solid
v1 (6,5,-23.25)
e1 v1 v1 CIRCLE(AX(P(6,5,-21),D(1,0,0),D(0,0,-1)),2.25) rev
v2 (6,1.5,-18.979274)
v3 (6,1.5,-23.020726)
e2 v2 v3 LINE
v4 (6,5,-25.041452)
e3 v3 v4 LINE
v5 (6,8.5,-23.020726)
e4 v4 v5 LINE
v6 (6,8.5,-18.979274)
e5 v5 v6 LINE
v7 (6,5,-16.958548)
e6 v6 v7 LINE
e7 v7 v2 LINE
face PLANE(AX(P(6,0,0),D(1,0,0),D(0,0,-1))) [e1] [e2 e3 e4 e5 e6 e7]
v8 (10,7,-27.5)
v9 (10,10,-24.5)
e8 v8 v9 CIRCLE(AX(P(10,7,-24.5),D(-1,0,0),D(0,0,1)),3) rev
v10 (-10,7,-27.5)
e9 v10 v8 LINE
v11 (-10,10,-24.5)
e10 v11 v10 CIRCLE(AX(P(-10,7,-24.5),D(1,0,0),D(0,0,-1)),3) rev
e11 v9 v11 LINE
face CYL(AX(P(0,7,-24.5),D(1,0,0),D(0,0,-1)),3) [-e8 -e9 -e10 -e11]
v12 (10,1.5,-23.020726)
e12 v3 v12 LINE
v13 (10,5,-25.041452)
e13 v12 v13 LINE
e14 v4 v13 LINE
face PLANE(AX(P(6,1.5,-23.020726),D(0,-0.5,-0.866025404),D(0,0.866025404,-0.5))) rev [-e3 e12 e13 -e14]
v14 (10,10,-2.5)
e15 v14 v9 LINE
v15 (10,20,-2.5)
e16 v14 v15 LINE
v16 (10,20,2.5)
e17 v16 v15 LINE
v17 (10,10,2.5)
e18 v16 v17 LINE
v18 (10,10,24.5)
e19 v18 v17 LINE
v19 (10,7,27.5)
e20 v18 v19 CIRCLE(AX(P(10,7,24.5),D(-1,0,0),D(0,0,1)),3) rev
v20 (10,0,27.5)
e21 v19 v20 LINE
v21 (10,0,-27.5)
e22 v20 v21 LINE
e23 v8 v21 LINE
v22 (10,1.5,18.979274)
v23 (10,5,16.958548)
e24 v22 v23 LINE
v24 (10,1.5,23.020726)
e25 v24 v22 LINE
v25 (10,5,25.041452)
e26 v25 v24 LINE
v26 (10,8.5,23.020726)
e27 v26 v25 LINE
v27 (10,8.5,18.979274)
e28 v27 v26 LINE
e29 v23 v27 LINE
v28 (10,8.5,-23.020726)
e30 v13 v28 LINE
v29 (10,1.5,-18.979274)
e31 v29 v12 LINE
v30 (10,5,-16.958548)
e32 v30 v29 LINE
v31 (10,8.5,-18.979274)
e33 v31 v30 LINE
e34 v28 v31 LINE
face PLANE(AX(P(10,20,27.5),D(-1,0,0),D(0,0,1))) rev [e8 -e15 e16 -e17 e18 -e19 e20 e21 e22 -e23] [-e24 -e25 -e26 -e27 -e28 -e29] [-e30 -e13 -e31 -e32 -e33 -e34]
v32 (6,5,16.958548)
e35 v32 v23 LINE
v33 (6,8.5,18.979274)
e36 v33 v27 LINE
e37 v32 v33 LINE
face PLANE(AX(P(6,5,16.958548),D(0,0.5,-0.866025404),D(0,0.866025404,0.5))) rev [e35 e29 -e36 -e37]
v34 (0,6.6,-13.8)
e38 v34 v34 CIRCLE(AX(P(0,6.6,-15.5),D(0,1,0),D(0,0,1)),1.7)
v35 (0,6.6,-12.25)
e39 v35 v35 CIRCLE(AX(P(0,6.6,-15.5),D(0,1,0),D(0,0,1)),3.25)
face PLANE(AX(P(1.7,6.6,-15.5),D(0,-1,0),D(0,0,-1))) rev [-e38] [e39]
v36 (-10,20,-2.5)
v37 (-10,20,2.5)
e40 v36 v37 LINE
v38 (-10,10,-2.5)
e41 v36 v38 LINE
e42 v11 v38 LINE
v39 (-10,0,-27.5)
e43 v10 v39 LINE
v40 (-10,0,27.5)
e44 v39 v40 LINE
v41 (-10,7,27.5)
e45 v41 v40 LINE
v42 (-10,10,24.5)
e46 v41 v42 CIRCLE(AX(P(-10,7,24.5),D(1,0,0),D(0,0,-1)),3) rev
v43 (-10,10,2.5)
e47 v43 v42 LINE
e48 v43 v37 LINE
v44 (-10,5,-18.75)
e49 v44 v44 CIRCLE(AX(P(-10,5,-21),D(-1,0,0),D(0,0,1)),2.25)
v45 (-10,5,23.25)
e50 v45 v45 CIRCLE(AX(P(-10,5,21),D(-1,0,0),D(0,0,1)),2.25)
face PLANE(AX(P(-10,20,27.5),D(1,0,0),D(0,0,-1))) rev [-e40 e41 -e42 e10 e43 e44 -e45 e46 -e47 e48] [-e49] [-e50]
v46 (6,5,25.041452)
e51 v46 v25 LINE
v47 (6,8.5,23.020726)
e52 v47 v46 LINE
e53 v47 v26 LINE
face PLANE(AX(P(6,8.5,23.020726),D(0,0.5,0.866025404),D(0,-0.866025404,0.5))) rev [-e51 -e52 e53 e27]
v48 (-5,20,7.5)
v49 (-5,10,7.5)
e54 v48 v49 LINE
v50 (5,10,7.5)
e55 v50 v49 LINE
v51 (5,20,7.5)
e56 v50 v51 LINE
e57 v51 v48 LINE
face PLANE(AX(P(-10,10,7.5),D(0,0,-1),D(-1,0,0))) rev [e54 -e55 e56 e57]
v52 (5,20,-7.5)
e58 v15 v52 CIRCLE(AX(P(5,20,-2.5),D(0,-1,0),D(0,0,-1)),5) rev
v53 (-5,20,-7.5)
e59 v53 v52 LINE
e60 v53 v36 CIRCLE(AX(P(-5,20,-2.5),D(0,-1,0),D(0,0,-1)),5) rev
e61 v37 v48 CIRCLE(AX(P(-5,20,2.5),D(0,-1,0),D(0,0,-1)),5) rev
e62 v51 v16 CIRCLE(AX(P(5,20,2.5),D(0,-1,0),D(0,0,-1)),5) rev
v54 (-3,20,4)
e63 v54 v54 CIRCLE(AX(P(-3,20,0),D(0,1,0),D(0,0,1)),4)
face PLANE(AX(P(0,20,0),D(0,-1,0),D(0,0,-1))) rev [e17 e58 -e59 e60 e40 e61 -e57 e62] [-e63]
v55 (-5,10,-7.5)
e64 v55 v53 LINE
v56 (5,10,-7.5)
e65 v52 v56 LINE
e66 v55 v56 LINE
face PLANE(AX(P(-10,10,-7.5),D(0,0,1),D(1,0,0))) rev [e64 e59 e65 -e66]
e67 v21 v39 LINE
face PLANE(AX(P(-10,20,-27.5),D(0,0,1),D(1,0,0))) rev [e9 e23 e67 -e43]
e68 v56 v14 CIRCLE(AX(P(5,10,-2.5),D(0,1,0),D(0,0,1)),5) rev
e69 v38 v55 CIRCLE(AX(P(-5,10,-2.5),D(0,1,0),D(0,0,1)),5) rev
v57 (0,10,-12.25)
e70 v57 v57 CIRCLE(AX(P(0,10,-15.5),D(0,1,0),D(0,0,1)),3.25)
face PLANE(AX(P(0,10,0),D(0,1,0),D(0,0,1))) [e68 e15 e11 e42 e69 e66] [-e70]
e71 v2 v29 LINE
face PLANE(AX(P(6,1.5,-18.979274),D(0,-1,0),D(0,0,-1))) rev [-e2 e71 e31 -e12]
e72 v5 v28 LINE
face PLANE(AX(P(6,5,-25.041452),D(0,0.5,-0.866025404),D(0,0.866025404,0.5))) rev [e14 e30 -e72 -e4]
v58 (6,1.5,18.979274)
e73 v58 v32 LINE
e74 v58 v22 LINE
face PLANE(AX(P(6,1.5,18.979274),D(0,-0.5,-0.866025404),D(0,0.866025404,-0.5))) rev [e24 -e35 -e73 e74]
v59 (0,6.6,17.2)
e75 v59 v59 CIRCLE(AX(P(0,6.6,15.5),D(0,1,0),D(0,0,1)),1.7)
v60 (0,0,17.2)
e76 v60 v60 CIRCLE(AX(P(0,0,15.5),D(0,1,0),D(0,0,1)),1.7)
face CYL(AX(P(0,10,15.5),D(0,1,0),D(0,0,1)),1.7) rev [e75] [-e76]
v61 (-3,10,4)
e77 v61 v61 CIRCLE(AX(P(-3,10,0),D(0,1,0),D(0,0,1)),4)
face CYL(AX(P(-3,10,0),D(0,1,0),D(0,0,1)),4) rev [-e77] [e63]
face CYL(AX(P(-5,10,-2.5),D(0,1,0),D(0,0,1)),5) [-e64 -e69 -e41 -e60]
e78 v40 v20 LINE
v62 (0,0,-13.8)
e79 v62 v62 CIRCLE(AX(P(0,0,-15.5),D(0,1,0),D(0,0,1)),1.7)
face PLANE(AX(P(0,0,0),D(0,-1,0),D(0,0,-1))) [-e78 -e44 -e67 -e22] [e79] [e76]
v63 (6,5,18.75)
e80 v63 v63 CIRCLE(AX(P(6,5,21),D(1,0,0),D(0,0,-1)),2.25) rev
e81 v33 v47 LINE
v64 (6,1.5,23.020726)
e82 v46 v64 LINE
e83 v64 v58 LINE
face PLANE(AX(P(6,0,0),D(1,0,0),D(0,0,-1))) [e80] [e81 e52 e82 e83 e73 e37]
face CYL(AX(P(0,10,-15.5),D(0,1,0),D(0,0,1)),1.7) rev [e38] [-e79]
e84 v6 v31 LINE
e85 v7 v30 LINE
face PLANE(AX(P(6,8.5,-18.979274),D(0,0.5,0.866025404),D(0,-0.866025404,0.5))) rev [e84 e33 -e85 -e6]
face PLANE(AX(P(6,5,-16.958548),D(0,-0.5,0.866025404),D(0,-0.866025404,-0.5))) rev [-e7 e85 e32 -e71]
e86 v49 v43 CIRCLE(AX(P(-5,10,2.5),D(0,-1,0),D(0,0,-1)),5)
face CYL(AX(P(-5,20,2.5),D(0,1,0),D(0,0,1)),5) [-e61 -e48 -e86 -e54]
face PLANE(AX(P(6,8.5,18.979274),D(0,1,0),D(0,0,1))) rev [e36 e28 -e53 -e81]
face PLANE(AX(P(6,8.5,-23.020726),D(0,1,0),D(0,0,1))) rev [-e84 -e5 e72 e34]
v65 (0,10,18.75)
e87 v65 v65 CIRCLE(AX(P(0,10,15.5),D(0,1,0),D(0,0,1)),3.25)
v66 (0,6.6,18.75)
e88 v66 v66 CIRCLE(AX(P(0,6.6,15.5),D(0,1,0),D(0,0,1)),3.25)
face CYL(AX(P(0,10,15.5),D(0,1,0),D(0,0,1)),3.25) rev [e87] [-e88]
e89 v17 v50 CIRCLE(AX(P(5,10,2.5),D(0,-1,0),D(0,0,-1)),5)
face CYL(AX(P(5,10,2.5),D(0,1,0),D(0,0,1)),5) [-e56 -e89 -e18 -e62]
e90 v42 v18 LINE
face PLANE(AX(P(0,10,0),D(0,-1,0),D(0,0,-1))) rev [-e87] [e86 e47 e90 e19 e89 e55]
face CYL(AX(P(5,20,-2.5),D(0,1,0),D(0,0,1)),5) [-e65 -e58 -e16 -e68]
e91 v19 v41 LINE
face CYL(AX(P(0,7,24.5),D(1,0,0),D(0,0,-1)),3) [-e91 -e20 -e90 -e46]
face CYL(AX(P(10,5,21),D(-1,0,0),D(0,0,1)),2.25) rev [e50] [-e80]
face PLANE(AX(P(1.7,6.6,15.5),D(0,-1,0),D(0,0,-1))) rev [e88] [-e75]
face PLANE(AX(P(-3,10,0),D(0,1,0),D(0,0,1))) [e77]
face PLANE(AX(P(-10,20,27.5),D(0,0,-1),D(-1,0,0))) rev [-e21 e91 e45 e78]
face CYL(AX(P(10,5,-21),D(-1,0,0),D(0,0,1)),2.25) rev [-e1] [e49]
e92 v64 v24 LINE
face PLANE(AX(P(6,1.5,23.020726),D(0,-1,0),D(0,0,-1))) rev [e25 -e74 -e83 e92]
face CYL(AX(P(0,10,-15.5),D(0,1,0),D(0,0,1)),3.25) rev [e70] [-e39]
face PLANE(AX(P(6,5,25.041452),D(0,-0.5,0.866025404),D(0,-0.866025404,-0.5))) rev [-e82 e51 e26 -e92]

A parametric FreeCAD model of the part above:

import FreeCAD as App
import Part
import Sketcher

V = App.Vector
Q = App.Units.Quantity


def edges_at(feature, points):
    """Names of the edges that pass closest to the given points."""
    edges = feature.Shape.Edges
    near = lambda p: min(range(len(edges)), key=lambda i: edges[i].distToShape(Part.Vertex(*p))[0])
    return sorted({f"Edge{near(p) + 1}" for p in points})


def add_polygon(sketch, points):
    """Adds a closed chain of lines whose ends are joined by coincident constraints."""
    first, n = sketch.GeometryCount, len(points)
    for a, b in zip(points, points[1:] + points[:1]):
        sketch.addGeometry(Part.LineSegment(App.Vector(*a, 0), App.Vector(*b, 0)), False)
    for i in range(n):
        sketch.addConstraint(Sketcher.Constraint("Coincident", first + i, 2, first + (i + 1) % n, 1))

doc = App.newDocument("Part")
params = doc.addObject("Spreadsheet::Sheet", "Params")
for row, (alias, value) in enumerate([
    ("sketch1_width", "20 mm"),
    ("sketch1_height", "55 mm"),
    ("pad1_length", "20 mm"),
    ("sketch2_diameter", "8 mm"),
    ("pocket1_length", "10 mm"),
    ("sketch3_width", "20 mm"),
    ("pocket2_length", "10 mm"),
    ("sketch4_diameter", "3.4 mm"),
    ("hole_diameter", "3.4 mm"),
    ("hole_cbore_diameter", "6.5 mm"),
    ("hole_cbore_depth", "3.4 mm"),
    ("fillet_radius", "5 mm"),
    ("sketch5_diameter", "4.5 mm"),
    ("pocket4_length", "4 mm"),
    ("fillet2_radius", "3 mm"),
], start=1):
    params.set(f"A{row}", alias)
    params.set(f"B{row}", "=" + value)
    params.setAlias(f"B{row}", alias)

body = doc.addObject("PartDesign::Body", "Body")

sketch1 = body.newObject("Sketcher::SketchObject", "Sketch")
sketch1.AttachmentSupport = (doc.getObject("XZ_Plane"), [""])
sketch1.MapMode = "FlatFace"
add_polygon(sketch1, [(-10, -28), (-10, 28), (10, 28), (10, -28)])
sketch1.addConstraint(Sketcher.Constraint("Vertical", 0))
sketch1.addConstraint(Sketcher.Constraint("Horizontal", 1))
sketch1.addConstraint(Sketcher.Constraint("Vertical", 2))
sketch1.addConstraint(Sketcher.Constraint("Horizontal", 3))
sketch1.addConstraint(Sketcher.Constraint("Symmetric", 0, 2, 2, 2, -1, 1))
sketch1.addConstraint(Sketcher.Constraint("DistanceX", 1, 1, 1, 2, Q("20 mm")))
sketch1.addConstraint(Sketcher.Constraint("DistanceY", 0, 1, 0, 2, Q("55 mm")))
sketch1.setExpression("Constraints[9]", "Params.sketch1_width")
sketch1.setExpression("Constraints[10]", "Params.sketch1_height")
pad1 = body.newObject("PartDesign::Pad", "Pad")
pad1.Profile = sketch1
pad1.setExpression("Length", "Params.pad1_length")
pad1.Reversed = True

sketch2 = body.newObject("Sketcher::SketchObject", "Sketch001")
sketch2.AttachmentSupport = (doc.getObject("XZ_Plane"), [""])
sketch2.MapMode = "FlatFace"
sketch2.AttachmentOffset = App.Placement(V(0, 0, -20), App.Rotation())
sketch2.addGeometry(Part.Circle(V(-3, 0, 0), V(0, 0, 1), 4), False)
sketch2.addConstraint(Sketcher.Constraint("PointOnObject", 0, 3, -1))
sketch2.addConstraint(Sketcher.Constraint("Diameter", 0, Q("8 mm")))
sketch2.addConstraint(Sketcher.Constraint("DistanceX", 0, 3, -1, 1, Q("3 mm")))
sketch2.setExpression("Constraints[1]", "Params.sketch2_diameter")
pocket1 = body.newObject("PartDesign::Pocket", "Pocket")
pocket1.Profile = sketch2
pocket1.setExpression("Length", "Params.pocket1_length")
pocket1.Reversed = True

sketch3 = body.newObject("Sketcher::SketchObject", "Sketch002")
sketch3.AttachmentSupport = (doc.getObject("XZ_Plane"), [""])
sketch3.MapMode = "FlatFace"
sketch3.AttachmentOffset = App.Placement(V(0, 0, -20), App.Rotation())
add_polygon(sketch3, [(-10, 8), (-10, 28), (10, 28), (10, 8)])
add_polygon(sketch3, [(-10, -28), (-10, -8), (10, -8), (10, -28)])
sketch3.addConstraint(Sketcher.Constraint("Vertical", 0))
sketch3.addConstraint(Sketcher.Constraint("Horizontal", 1))
sketch3.addConstraint(Sketcher.Constraint("Vertical", 2))
sketch3.addConstraint(Sketcher.Constraint("Horizontal", 3))
sketch3.addConstraint(Sketcher.Constraint("Vertical", 4))
sketch3.addConstraint(Sketcher.Constraint("Horizontal", 5))
sketch3.addConstraint(Sketcher.Constraint("Vertical", 6))
sketch3.addConstraint(Sketcher.Constraint("Horizontal", 7))
sketch3.addConstraint(Sketcher.Constraint("Symmetric", 2, 2, 4, 2, -1, 1))
sketch3.addConstraint(Sketcher.Constraint("Symmetric", 0, 2, 6, 2, -1, 1))
sketch3.addConstraint(Sketcher.Constraint("Vertical", 3, 2, 4, 2))
sketch3.addConstraint(Sketcher.Constraint("Equal", 7, 0))
sketch3.addConstraint(Sketcher.Constraint("DistanceX", 1, 1, 1, 2, Q("20 mm")))
sketch3.addConstraint(Sketcher.Constraint("DistanceY", 4, 2, 3, 2, Q("15 mm")))
sketch3.setExpression("Constraints[20]", "Params.sketch3_width")
pocket2 = body.newObject("PartDesign::Pocket", "Pocket001")
pocket2.Profile = sketch3
pocket2.setExpression("Length", "Params.pocket2_length")
pocket2.Reversed = True

sketch4 = body.newObject("Sketcher::SketchObject", "Sketch003")
sketch4.AttachmentSupport = (doc.getObject("XZ_Plane"), [""])
sketch4.MapMode = "FlatFace"
sketch4.AttachmentOffset = App.Placement(V(0, 0, -10), App.Rotation())
sketch4.addGeometry(Part.Circle(V(0, 15.5, 0), V(0, 0, 1), 1.7), False)
sketch4.addGeometry(Part.Circle(V(0, -15.5, 0), V(0, 0, 1), 1.7), False)
sketch4.addConstraint(Sketcher.Constraint("Equal", 0, 1))
sketch4.addConstraint(Sketcher.Constraint("Symmetric", 0, 3, 1, 3, -1, 1))
sketch4.addConstraint(Sketcher.Constraint("PointOnObject", 0, 3, -2))
sketch4.addConstraint(Sketcher.Constraint("Diameter", 0, Q("3.4 mm")))
sketch4.addConstraint(Sketcher.Constraint("DistanceY", 1, 3, 0, 3, Q("31 mm")))
sketch4.setExpression("Constraints[3]", "Params.sketch4_diameter")
doc.recompute()
hole = body.newObject("PartDesign::Hole", "Hole")
hole.Profile = sketch4
hole.ThreadType = "None"
hole.setExpression("Diameter", "Params.hole_diameter")
hole.DepthType = "ThroughAll"
hole.HoleCutType = "Counterbore"
hole.setExpression("HoleCutDiameter", "Params.hole_cbore_diameter")
hole.setExpression("HoleCutDepth", "Params.hole_cbore_depth")
hole.Reversed = True
doc.recompute()

fillet = body.newObject("PartDesign::Fillet", "Fillet")
fillet.Base = (hole, edges_at(hole, [
    (-10, 15, 7.5),
    (10, 15, 7.5),
    (-10, 15, -7.5),
    (10, 15, -7.5),
]))
fillet.setExpression("Radius", "Params.fillet_radius")

sketch5 = body.newObject("Sketcher::SketchObject", "Sketch004")
sketch5.AttachmentSupport = (doc.getObject("YZ_Plane"), [""])
sketch5.MapMode = "FlatFace"
sketch5.AttachmentOffset = App.Placement(V(0, 0, -10), App.Rotation())
sketch5.addGeometry(Part.Circle(V(5, -21, 0), V(0, 0, 1), 2.2), False)
sketch5.addGeometry(Part.Circle(V(5, 21, 0), V(0, 0, 1), 2.2), False)
sketch5.addConstraint(Sketcher.Constraint("Equal", 0, 1))
sketch5.addConstraint(Sketcher.Constraint("Symmetric", 0, 3, 1, 3, -1))
sketch5.addConstraint(Sketcher.Constraint("Diameter", 0, Q("4.5 mm")))
sketch5.addConstraint(Sketcher.Constraint("DistanceX", -1, 1, 0, 3, Q("5 mm")))
sketch5.addConstraint(Sketcher.Constraint("DistanceY", 0, 3, -1, 1, Q("21 mm")))
sketch5.setExpression("Constraints[2]", "Params.sketch5_diameter")
pocket3 = body.newObject("PartDesign::Pocket", "Pocket002")
pocket3.Profile = sketch5
pocket3.Type = "ThroughAll"
pocket3.Reversed = True

sketch6 = body.newObject("Sketcher::SketchObject", "Sketch005")
sketch6.AttachmentSupport = (doc.getObject("YZ_Plane"), [""])
sketch6.MapMode = "FlatFace"
sketch6.AttachmentOffset = App.Placement(V(0, 0, 10), App.Rotation())
add_polygon(sketch6, [(5, 17), (8.5, 19), (8.5, 23), (5, 25), (1.5, 23), (1.5, 19)])
add_polygon(sketch6, [(5, -17), (1.5, -19), (1.5, -23), (5, -25), (8.5, -23), (8.5, -19)])
sketch6.addConstraint(Sketcher.Constraint("Vertical", 1))
sketch6.addConstraint(Sketcher.Constraint("Vertical", 4))
sketch6.addConstraint(Sketcher.Constraint("Vertical", 7))
sketch6.addConstraint(Sketcher.Constraint("Vertical", 10))
sketch6.addConstraint(Sketcher.Constraint("Symmetric", 4, 2, 6, 2, -1))
sketch6.addConstraint(Sketcher.Constraint("Symmetric", 2, 2, 8, 2, -1))
sketch6.addConstraint(Sketcher.Constraint("Symmetric", 1, 2, 9, 2, -1))
sketch6.addConstraint(Sketcher.Constraint("Symmetric", 5, 2, 11, 2, -1))
sketch6.addConstraint(Sketcher.Constraint("Parallel", 0, 3))
sketch6.addConstraint(Sketcher.Constraint("Parallel", 2, 5))
sketch6.addConstraint(Sketcher.Constraint("Parallel", 3, 6))
sketch6.addConstraint(Sketcher.Constraint("Parallel", 5, 8))
sketch6.addConstraint(Sketcher.Constraint("Parallel", 8, 11))
sketch6.addConstraint(Sketcher.Constraint("Horizontal", 1, 2, 3, 2))
sketch6.addConstraint(Sketcher.Constraint("Horizontal", 0, 2, 4, 2))
sketch6.addConstraint(Sketcher.Constraint("Angle", 0, Q("30 deg")))
sketch6.addConstraint(Sketcher.Constraint("DistanceX", -1, 1, 2, 2, Q("5 mm")))
sketch6.addConstraint(Sketcher.Constraint("DistanceX", 3, 2, 1, 2, Q("7 mm")))
sketch6.addConstraint(Sketcher.Constraint("DistanceY", 6, 2, 3, 2, Q("42 mm")))
sketch6.addConstraint(Sketcher.Constraint("DistanceY", 1, 1, 1, 2, Q("4.041452 mm")))
pocket4 = body.newObject("PartDesign::Pocket", "Pocket003")
pocket4.Profile = sketch6
pocket4.setExpression("Length", "Params.pocket4_length")
doc.recompute()

fillet2 = body.newObject("PartDesign::Fillet", "Fillet001")
fillet2.Base = (pocket4, edges_at(pocket4, [(0, 10, 27.5), (0, 10, -27.5)]))
fillet2.setExpression("Radius", "Params.fillet2_radius")

doc.recompute()
